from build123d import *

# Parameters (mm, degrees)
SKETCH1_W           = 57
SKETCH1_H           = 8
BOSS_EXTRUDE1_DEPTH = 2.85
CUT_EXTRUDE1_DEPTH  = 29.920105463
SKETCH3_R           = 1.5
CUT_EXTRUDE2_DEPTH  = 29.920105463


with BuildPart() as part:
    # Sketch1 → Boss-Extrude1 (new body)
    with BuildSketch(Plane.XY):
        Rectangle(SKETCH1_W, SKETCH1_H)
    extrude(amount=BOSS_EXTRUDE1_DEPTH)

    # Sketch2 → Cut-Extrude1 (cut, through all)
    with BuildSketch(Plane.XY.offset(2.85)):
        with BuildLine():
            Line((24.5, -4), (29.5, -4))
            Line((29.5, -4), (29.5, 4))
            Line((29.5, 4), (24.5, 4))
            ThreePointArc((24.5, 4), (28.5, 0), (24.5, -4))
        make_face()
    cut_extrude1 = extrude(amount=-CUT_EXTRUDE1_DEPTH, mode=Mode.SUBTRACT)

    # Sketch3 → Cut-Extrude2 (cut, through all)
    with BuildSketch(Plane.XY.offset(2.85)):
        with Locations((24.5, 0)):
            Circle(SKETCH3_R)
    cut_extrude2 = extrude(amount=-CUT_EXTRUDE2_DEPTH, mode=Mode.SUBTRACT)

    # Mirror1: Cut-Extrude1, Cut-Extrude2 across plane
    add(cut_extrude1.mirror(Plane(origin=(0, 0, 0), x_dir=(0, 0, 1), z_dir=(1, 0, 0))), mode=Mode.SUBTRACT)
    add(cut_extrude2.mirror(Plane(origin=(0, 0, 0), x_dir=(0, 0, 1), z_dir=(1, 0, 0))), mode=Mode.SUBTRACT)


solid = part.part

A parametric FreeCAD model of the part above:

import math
import FreeCAD as App
import Part
import Sketcher

V = App.Vector

doc = App.newDocument("Part")
body = doc.addObject("PartDesign::Body", "Body")

# Sketch on XY plane
sketch1 = body.newObject("Sketcher::SketchObject", "Sketch")
sketch1.AttachmentSupport = (doc.getObject("XY_Plane"), [""])
sketch1.MapMode = "FlatFace"
sketch1.addGeometry(Part.LineSegment(V(-28.5, 4, 0), V(-28.5, -4, 0)), False)
sketch1.addGeometry(Part.LineSegment(V(-28.5, -4, 0), V(28.5, -4, 0)), False)
sketch1.addGeometry(Part.LineSegment(V(28.5, -4, 0), V(28.5, 4, 0)), False)
sketch1.addGeometry(Part.LineSegment(V(28.5, 4, 0), V(-28.5, 4, 0)), False)
sketch1.addConstraint(Sketcher.Constraint("Coincident", 0, 2, 1, 1))
sketch1.addConstraint(Sketcher.Constraint("Coincident", 1, 2, 2, 1))
sketch1.addConstraint(Sketcher.Constraint("Coincident", 2, 2, 3, 1))
sketch1.addConstraint(Sketcher.Constraint("Coincident", 3, 2, 0, 1))
sketch1.addConstraint(Sketcher.Constraint("Vertical", 0))
sketch1.addConstraint(Sketcher.Constraint("Horizontal", 1))
sketch1.addConstraint(Sketcher.Constraint("Vertical", 2))
sketch1.addConstraint(Sketcher.Constraint("Horizontal", 3))
sketch1.addConstraint(Sketcher.Constraint("Symmetric", 0, 2, 2, 2, -1, 1))
sketch1.addConstraint(Sketcher.Constraint("DistanceX", 1, 1, 1, 2, 57.0))
sketch1.addConstraint(Sketcher.Constraint("DistanceY", 0, 2, 0, 1, 8.0))
pad1 = body.newObject("PartDesign::Pad", "Pad")
pad1.Profile = sketch1
pad1.Length = 2.85

# Sketch on XY plane
sketch2 = body.newObject("Sketcher::SketchObject", "Sketch001")
sketch2.AttachmentSupport = (doc.getObject("XY_Plane"), [""])
sketch2.MapMode = "FlatFace"
sketch2.AttachmentOffset = App.Placement(V(0, 0, 2.85), App.Rotation())
sketch2.addGeometry(Part.LineSegment(V(24.5, -4, 0), V(29.5, -4, 0)), False)
sketch2.addGeometry(Part.LineSegment(V(29.5, -4, 0), V(29.5, 4, 0)), False)
sketch2.addGeometry(Part.LineSegment(V(29.5, 4, 0), V(24.5, 4, 0)), False)
sketch2.addGeometry(Part.ArcOfCircle(Part.Circle(V(24.5, 0, 0), V(0, 0, 1), 4), math.radians(-90), math.radians(90)), False)
sketch2.addConstraint(Sketcher.Constraint("Coincident", 0, 2, 1, 1))
sketch2.addConstraint(Sketcher.Constraint("Coincident", 1, 2, 2, 1))
sketch2.addConstraint(Sketcher.Constraint("Tangent", 2, 2, 3, 2))
sketch2.addConstraint(Sketcher.Constraint("Tangent", 3, 1, 0, 1))
sketch2.addConstraint(Sketcher.Constraint("Horizontal", 0))
sketch2.addConstraint(Sketcher.Constraint("Vertical", 1))
sketch2.addConstraint(Sketcher.Constraint("Horizontal", 2))
sketch2.addConstraint(Sketcher.Constraint("PointOnObject", 3, 3, -1))
sketch2.addConstraint(Sketcher.Constraint("Radius", 3, 4.0))
sketch2.addConstraint(Sketcher.Constraint("DistanceX", 0, 1, 0, 2, 5.0))
sketch2.addConstraint(Sketcher.Constraint("DistanceX", -1, 1, 3, 3, 24.5))
pocket1 = body.newObject("PartDesign::Pocket", "Pocket")
pocket1.Profile = sketch2
pocket1.Type = "ThroughAll"

# Sketch on XY plane
sketch3 = body.newObject("Sketcher::SketchObject", "Sketch002")
sketch3.AttachmentSupport = (doc.getObject("XY_Plane"), [""])
sketch3.MapMode = "FlatFace"
sketch3.AttachmentOffset = App.Placement(V(0, 0, 2.85), App.Rotation())
sketch3.addGeometry(Part.Circle(V(24.5, 0, 0), V(0, 0, 1), 1.5), False)
sketch3.addConstraint(Sketcher.Constraint("PointOnObject", 0, 3, -1))
sketch3.addConstraint(Sketcher.Constraint("Diameter", 0, 3.0))
sketch3.addConstraint(Sketcher.Constraint("DistanceX", -1, 1, 0, 3, 24.5))
pocket2 = body.newObject("PartDesign::Pocket", "Pocket001")
pocket2.Profile = sketch3
pocket2.Type = "ThroughAll"
doc.recompute()

mirrored = body.newObject("PartDesign::Mirrored", "Mirrored")
mirrored.Originals = [pocket1, pocket2]
mirrored.MirrorPlane = (doc.getObject("YZ_Plane"), [""])
body.Tip = mirrored

doc.recompute()
